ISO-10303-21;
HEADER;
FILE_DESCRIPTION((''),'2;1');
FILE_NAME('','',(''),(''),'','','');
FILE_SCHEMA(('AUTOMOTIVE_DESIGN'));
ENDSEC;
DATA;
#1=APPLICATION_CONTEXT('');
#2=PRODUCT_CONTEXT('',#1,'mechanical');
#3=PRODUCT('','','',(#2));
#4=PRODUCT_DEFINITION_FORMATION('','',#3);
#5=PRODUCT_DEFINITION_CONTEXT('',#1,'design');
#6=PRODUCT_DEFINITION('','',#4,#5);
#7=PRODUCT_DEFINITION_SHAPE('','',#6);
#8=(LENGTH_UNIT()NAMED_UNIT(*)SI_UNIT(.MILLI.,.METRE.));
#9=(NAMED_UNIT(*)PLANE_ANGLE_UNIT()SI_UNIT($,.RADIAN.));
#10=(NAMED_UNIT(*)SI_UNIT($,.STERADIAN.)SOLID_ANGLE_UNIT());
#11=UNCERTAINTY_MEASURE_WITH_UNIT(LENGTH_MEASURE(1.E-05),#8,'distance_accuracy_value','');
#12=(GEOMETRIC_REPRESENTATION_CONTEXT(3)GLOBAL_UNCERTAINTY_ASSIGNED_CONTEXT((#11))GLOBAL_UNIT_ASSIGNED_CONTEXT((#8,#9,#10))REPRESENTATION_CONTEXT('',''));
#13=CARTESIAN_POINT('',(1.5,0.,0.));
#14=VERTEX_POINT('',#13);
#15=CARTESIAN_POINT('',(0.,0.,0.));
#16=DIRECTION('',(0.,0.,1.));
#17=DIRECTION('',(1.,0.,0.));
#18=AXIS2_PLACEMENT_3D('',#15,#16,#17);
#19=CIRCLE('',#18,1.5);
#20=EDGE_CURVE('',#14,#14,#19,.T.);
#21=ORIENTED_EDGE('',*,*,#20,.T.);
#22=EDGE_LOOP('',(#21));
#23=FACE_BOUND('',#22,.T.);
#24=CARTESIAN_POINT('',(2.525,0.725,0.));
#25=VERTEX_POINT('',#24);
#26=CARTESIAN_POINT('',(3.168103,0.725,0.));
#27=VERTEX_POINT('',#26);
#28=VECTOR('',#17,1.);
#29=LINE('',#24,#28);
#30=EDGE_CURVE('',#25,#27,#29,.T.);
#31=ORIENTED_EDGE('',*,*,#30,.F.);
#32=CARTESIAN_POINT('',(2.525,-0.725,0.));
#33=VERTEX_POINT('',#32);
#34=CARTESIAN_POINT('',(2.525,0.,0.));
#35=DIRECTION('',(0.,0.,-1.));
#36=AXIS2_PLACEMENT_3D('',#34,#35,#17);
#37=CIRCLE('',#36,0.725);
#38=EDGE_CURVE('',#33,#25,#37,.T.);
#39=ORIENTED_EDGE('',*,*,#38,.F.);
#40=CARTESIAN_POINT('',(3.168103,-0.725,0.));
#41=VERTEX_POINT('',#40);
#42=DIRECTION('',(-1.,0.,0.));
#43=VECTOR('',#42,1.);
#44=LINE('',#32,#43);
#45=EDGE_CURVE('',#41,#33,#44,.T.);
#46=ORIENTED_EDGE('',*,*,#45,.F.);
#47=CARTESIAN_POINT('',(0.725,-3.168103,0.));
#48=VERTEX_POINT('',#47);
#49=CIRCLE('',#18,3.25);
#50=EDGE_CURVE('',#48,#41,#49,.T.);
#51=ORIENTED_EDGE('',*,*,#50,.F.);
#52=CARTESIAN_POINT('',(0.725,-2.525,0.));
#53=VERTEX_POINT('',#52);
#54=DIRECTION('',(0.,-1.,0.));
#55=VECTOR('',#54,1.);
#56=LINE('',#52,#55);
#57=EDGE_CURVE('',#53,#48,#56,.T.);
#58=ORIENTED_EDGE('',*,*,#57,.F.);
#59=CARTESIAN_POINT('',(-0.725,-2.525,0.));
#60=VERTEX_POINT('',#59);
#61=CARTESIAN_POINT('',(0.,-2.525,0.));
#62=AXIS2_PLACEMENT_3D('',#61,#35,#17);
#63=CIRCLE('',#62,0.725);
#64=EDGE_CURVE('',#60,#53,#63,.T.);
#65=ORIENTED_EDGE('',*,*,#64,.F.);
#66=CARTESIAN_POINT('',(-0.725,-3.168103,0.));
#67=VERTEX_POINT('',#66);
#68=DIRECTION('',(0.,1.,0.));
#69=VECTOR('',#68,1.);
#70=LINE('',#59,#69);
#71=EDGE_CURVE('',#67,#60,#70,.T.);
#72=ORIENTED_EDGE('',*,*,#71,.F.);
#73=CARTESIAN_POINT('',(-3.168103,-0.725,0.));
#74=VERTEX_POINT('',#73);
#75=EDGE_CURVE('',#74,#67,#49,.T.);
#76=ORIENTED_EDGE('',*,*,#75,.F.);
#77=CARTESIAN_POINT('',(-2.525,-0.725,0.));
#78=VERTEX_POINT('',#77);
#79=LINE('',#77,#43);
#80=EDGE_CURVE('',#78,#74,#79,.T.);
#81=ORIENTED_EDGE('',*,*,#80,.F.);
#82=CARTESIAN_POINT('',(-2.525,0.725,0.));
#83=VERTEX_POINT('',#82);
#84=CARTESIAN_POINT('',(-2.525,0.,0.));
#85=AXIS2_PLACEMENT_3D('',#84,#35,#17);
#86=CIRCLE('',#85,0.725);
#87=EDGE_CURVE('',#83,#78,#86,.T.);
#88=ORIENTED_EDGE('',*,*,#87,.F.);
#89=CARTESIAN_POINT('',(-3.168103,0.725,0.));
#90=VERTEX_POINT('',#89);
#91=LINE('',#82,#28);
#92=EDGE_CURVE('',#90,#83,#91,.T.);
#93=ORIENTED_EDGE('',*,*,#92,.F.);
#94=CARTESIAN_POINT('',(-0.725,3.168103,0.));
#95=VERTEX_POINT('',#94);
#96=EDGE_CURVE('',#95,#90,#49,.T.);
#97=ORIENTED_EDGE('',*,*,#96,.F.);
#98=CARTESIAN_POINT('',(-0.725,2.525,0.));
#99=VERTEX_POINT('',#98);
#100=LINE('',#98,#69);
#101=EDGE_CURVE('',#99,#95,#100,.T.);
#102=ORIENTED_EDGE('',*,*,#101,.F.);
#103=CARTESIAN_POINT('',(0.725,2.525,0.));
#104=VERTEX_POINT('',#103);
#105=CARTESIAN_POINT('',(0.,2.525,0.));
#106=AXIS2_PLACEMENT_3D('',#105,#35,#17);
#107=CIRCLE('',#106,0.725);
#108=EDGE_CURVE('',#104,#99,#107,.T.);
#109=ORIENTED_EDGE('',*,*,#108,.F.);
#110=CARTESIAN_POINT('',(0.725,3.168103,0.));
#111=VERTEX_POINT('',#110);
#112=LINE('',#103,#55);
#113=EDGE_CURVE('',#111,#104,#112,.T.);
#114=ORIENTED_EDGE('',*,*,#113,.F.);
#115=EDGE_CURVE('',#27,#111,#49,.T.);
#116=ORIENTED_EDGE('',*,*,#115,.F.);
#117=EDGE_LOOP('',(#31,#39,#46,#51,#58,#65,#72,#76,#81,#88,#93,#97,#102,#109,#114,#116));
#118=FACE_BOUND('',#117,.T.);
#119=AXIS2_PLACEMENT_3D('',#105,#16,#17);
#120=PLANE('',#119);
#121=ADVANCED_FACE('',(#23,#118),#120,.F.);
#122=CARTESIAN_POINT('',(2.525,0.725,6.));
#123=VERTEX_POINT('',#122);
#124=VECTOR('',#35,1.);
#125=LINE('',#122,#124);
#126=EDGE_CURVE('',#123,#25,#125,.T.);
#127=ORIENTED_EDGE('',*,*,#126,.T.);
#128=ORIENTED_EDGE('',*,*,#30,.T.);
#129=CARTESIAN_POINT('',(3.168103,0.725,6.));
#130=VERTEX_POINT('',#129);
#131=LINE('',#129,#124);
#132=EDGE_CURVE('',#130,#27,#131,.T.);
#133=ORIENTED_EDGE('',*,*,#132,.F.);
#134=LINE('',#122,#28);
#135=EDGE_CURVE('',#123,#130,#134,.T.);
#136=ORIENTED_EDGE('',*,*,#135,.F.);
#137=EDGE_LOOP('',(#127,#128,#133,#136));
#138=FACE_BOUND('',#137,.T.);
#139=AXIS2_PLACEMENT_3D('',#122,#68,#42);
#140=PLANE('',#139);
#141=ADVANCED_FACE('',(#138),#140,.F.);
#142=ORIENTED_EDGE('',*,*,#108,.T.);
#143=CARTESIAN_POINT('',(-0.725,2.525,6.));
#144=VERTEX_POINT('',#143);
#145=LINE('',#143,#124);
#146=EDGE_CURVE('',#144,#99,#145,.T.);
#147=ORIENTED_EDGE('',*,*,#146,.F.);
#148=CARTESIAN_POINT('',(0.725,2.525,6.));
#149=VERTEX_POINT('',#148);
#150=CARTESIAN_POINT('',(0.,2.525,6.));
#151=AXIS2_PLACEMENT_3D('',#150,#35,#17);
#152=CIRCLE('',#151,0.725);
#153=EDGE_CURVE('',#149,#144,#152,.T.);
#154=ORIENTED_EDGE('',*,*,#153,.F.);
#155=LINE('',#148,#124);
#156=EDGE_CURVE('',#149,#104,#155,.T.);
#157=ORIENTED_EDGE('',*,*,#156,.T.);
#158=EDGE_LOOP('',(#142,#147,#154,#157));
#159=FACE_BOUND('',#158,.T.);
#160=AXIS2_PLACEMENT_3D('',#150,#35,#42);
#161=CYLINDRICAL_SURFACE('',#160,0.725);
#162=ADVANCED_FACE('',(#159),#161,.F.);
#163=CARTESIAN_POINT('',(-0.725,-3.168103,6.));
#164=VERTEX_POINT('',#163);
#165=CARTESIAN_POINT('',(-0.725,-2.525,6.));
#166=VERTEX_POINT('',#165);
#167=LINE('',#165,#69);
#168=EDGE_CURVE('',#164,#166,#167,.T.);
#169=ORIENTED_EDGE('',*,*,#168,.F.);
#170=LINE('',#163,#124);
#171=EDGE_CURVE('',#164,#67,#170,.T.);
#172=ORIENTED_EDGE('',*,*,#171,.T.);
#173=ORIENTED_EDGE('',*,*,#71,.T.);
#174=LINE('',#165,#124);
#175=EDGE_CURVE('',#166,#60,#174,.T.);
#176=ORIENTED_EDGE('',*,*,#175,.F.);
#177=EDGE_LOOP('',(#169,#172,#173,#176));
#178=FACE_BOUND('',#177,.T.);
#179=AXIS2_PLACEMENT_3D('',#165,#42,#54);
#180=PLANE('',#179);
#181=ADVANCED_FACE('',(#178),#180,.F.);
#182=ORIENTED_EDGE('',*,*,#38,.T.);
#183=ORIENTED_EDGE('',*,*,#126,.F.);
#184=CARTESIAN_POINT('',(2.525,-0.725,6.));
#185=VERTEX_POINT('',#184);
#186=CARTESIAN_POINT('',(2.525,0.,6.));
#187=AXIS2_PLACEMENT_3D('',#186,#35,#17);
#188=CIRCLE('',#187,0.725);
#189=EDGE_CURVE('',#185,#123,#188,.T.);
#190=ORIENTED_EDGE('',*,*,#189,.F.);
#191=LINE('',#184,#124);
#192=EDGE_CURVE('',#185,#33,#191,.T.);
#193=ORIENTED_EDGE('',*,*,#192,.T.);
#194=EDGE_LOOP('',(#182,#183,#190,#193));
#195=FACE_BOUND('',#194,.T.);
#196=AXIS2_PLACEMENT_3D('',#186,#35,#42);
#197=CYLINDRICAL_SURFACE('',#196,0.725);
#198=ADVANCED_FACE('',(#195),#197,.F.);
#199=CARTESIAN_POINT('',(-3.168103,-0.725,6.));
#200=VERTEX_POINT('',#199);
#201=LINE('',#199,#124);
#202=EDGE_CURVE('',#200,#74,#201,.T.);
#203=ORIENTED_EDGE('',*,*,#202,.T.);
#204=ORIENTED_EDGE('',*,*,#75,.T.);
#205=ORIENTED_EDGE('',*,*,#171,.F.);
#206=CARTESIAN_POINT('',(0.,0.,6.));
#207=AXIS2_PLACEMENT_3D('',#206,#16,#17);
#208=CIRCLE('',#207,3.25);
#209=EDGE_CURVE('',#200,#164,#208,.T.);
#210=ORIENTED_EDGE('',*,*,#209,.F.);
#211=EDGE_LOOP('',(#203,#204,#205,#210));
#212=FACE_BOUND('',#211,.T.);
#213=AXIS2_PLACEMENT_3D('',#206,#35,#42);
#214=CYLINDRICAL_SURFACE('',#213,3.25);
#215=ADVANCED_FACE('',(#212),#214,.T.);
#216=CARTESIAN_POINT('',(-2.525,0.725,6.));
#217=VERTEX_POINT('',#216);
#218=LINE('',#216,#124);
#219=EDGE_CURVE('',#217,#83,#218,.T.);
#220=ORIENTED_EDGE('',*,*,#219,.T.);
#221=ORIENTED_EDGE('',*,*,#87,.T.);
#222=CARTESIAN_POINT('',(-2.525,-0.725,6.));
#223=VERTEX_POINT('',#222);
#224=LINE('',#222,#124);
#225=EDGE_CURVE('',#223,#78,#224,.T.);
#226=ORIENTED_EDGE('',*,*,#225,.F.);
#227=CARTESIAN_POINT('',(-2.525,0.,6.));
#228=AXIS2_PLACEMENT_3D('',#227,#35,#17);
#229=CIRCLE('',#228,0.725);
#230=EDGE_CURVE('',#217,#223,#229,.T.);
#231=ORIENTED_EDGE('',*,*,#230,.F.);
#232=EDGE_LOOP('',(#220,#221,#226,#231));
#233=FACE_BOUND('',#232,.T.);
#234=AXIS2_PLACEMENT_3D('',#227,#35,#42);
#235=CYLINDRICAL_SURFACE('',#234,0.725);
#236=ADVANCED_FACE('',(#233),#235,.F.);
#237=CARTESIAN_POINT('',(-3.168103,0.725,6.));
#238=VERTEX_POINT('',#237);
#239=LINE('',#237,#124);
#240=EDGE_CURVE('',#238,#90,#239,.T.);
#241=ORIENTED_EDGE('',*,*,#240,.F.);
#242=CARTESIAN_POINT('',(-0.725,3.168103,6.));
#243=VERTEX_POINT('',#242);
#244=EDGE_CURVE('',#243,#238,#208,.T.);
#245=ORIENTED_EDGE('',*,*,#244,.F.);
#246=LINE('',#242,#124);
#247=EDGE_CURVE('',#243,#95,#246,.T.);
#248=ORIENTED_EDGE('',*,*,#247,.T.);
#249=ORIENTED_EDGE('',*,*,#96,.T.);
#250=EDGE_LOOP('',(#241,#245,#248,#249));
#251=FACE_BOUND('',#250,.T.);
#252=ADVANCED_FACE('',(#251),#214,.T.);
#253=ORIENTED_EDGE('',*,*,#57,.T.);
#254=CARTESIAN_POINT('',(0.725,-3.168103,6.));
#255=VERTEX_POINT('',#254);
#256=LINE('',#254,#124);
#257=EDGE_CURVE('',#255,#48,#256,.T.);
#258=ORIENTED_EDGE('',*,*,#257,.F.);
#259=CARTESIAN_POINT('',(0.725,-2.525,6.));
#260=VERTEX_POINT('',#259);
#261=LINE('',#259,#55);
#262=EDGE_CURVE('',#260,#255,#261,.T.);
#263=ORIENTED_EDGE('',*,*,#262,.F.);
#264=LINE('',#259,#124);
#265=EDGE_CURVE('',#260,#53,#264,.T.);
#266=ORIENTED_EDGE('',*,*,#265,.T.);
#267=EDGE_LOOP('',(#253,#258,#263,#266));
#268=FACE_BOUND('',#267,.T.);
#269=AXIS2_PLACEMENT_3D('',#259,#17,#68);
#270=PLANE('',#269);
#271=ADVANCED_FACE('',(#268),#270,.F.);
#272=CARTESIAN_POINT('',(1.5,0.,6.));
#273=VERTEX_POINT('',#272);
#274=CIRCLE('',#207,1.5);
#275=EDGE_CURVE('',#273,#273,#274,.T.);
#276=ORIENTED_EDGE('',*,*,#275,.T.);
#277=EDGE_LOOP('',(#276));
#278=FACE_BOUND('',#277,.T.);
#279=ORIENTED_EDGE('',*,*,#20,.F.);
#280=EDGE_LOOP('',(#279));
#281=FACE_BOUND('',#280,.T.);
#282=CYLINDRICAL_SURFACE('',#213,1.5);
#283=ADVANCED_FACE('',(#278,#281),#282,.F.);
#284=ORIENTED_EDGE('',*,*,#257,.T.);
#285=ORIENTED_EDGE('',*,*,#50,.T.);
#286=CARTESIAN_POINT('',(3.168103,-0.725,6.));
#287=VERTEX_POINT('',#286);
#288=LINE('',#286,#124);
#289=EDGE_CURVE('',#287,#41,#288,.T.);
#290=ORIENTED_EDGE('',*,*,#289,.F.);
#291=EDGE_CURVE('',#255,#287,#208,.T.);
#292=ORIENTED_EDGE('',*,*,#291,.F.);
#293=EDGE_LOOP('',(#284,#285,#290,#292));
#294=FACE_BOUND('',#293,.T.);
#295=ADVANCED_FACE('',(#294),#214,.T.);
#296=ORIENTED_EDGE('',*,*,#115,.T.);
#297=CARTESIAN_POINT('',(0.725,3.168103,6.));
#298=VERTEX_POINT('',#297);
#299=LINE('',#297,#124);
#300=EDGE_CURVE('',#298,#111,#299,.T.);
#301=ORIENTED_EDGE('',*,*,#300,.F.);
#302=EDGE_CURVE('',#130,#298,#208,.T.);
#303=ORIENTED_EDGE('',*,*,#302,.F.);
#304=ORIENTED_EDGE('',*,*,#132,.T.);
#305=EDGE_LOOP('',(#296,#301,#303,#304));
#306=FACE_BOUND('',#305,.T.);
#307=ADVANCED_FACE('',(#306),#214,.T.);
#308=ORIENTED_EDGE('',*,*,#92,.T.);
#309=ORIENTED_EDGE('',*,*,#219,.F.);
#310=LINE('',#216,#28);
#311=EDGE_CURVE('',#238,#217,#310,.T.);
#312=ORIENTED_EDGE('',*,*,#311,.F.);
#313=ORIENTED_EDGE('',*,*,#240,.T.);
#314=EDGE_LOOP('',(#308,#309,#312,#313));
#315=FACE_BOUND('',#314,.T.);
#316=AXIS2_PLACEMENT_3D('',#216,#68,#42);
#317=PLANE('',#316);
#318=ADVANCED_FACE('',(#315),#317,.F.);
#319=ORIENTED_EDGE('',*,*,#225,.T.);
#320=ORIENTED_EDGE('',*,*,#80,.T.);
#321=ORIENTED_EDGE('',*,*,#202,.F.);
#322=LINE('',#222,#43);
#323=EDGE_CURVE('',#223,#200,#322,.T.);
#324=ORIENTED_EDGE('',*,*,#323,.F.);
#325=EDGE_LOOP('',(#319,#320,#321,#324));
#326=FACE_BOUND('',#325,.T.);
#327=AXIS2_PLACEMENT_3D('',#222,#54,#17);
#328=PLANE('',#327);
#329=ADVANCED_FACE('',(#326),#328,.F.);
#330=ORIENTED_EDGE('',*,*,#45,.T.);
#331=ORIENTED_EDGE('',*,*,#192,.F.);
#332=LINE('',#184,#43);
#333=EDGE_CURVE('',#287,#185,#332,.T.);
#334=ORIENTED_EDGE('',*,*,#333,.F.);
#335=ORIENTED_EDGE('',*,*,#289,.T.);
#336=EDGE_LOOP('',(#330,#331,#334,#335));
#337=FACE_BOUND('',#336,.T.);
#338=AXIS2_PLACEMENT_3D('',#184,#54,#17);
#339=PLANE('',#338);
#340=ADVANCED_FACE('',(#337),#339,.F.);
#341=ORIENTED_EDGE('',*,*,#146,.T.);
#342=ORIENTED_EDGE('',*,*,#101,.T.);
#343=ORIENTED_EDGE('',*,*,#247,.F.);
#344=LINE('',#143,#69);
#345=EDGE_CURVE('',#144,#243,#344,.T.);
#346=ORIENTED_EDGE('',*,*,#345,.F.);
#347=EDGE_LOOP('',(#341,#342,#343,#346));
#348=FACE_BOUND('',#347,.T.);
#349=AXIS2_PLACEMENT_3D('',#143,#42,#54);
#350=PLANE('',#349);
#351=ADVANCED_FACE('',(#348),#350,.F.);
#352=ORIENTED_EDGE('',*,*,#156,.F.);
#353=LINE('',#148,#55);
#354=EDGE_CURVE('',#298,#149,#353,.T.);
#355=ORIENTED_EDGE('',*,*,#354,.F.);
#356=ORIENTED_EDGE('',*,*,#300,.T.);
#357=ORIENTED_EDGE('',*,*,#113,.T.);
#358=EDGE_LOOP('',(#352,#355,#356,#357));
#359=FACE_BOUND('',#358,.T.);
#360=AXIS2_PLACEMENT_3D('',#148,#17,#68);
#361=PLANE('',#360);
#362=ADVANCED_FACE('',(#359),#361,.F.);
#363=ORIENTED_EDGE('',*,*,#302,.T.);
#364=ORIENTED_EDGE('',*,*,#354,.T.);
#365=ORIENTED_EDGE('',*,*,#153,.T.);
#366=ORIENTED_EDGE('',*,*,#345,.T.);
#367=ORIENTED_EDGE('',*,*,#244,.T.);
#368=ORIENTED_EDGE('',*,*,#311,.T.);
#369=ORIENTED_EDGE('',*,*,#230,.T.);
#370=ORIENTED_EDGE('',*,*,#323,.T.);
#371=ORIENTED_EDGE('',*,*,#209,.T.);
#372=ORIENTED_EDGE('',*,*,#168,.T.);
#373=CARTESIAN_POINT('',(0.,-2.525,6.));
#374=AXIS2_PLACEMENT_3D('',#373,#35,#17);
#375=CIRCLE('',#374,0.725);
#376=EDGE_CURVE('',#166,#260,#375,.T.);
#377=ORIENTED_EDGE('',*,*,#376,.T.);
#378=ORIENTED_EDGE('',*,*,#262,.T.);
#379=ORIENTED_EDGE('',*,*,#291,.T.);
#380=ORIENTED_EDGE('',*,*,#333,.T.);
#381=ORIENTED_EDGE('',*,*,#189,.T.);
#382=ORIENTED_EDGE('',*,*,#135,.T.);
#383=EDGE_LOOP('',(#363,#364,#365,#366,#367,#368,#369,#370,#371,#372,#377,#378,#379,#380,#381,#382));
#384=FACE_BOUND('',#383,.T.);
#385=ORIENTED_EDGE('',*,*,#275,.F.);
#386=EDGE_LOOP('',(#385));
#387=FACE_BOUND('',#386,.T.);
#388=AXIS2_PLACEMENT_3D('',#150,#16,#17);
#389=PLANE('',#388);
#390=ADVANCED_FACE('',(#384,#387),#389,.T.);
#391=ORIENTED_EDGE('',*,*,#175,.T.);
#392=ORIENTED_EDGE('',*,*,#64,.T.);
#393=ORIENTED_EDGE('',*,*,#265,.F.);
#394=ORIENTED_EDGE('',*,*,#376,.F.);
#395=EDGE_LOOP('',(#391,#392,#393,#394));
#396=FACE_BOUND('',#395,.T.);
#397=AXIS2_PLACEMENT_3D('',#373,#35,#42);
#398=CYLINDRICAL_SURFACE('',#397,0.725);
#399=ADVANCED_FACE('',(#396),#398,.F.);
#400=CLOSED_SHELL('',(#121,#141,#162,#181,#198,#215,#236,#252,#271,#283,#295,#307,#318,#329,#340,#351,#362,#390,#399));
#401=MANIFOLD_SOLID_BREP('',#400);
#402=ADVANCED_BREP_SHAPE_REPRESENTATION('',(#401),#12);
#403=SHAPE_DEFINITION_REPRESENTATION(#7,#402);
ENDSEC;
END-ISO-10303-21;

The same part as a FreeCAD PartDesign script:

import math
import FreeCAD as App
import Part
import Sketcher

doc = App.newDocument("Part")
body = doc.addObject("PartDesign::Body", "Body")

sketch1 = body.newObject("Sketcher::SketchObject", "Sketch")
sketch1.AttachmentSupport = (doc.getObject("XY_Plane"), [""])
sketch1.MapMode = "FlatFace"
sketch1.addGeometry([
    Part.LineSegment(App.Vector(-0.7, 2.5, 0), App.Vector(-0.7, 3.2, 0)),
    Part.ArcOfCircle(Part.Circle(App.Vector(0, 0, 0), App.Vector(0, 0, 1), 3.3), math.radians(103), math.radians(167)),
    Part.LineSegment(App.Vector(-3.2, 0.7, 0), App.Vector(-2.5, 0.7, 0)),
    Part.ArcOfCircle(Part.Circle(App.Vector(-2.5, 0, 0), App.Vector(0, 0, 1), 0.7), math.radians(-90), math.radians(90)),
    Part.LineSegment(App.Vector(-2.5, -0.7, 0), App.Vector(-3.2, -0.7, 0)),
    Part.ArcOfCircle(Part.Circle(App.Vector(0, 0, 0), App.Vector(0, 0, 1), 3.3), math.radians(-167), math.radians(-103)),
    Part.LineSegment(App.Vector(-0.7, -3.2, 0), App.Vector(-0.7, -2.5, 0)),
    Part.ArcOfCircle(Part.Circle(App.Vector(0, -2.5, 0), App.Vector(0, 0, 1), 0.7), math.radians(0), math.radians(180)),
    Part.LineSegment(App.Vector(0.7, -2.5, 0), App.Vector(0.7, -3.2, 0)),
    Part.ArcOfCircle(Part.Circle(App.Vector(0, 0, 0), App.Vector(0, 0, 1), 3.3), math.radians(-77), math.radians(-13)),
    Part.LineSegment(App.Vector(3.2, -0.7, 0), App.Vector(2.5, -0.7, 0)),
    Part.ArcOfCircle(Part.Circle(App.Vector(2.5, 0, 0), App.Vector(0, 0, 1), 0.7), math.radians(90), math.radians(270)),
    Part.LineSegment(App.Vector(2.5, 0.7, 0), App.Vector(3.2, 0.7, 0)),
    Part.ArcOfCircle(Part.Circle(App.Vector(0, 0, 0), App.Vector(0, 0, 1), 3.3), math.radians(13), math.radians(77)),
    Part.LineSegment(App.Vector(0.7, 3.2, 0), App.Vector(0.7, 2.5, 0)),
    Part.ArcOfCircle(Part.Circle(App.Vector(0, 2.5, 0), App.Vector(0, 0, 1), 0.7), math.radians(180), math.radians(360)),
    Part.Circle(App.Vector(0, 0, 0), App.Vector(0, 0, 1), 1.5),
], False)
sketch1.addConstraint([
    Sketcher.Constraint("Coincident", 0, 2, 1, 1),
    Sketcher.Constraint("Coincident", 1, 2, 2, 1),
    Sketcher.Constraint("Tangent", 2, 2, 3, 2),
    Sketcher.Constraint("Tangent", 3, 1, 4, 1),
    Sketcher.Constraint("Coincident", 4, 2, 5, 1),
    Sketcher.Constraint("Coincident", 5, 2, 6, 1),
    Sketcher.Constraint("Tangent", 6, 2, 7, 2),
    Sketcher.Constraint("Tangent", 7, 1, 8, 1),
    Sketcher.Constraint("Coincident", 8, 2, 9, 1),
    Sketcher.Constraint("Coincident", 9, 2, 10, 1),
    Sketcher.Constraint("Tangent", 10, 2, 11, 2),
    Sketcher.Constraint("Tangent", 11, 1, 12, 1),
    Sketcher.Constraint("Coincident", 12, 2, 13, 1),
    Sketcher.Constraint("Coincident", 13, 2, 14, 1),
    Sketcher.Constraint("Tangent", 14, 2, 15, 2),
    Sketcher.Constraint("Tangent", 15, 1, 0, 1),
    Sketcher.Constraint("Vertical", 0),
    Sketcher.Constraint("Horizontal", 2),
    Sketcher.Constraint("Horizontal", 4),
    Sketcher.Constraint("Vertical", 6),
    Sketcher.Constraint("Vertical", 8),
    Sketcher.Constraint("Horizontal", 10),
    Sketcher.Constraint("Horizontal", 12),
    Sketcher.Constraint("Vertical", 14),
    Sketcher.Constraint("Coincident", 1, 3, -1, 1),
    Sketcher.Constraint("Coincident", 5, 3, -1, 1),
    Sketcher.Constraint("Coincident", 9, 3, -1, 1),
    Sketcher.Constraint("Coincident", 13, 3, -1, 1),
    Sketcher.Constraint("Coincident", 16, 3, -1, 1),
    Sketcher.Constraint("Equal", 1, 5),
    Sketcher.Constraint("Equal", 3, 7),
    Sketcher.Constraint("Equal", 5, 9),
    Sketcher.Constraint("Equal", 7, 11),
    Sketcher.Constraint("Equal", 9, 13),
    Sketcher.Constraint("Equal", 11, 15),
    Sketcher.Constraint("Symmetric", 3, 3, 11, 3, -1, 1),
    Sketcher.Constraint("Symmetric", 7, 3, 15, 3, -1, 1),
    Sketcher.Constraint("PointOnObject", 3, 3, -1),
    Sketcher.Constraint("PointOnObject", 7, 3, -2),
    Sketcher.Constraint("Equal", 12, 0),
    Sketcher.Constraint("Diameter", 16, 3.0),
    Sketcher.Constraint("Radius", 1, 3.25),
    Sketcher.Constraint("Radius", 3, 0.725),
    Sketcher.Constraint("DistanceX", 3, 1, 5, 2, 1.8),
])
pad1 = body.newObject("PartDesign::Pad", "Pad")
pad1.Profile = sketch1
pad1.Length = 6

doc.recompute()
